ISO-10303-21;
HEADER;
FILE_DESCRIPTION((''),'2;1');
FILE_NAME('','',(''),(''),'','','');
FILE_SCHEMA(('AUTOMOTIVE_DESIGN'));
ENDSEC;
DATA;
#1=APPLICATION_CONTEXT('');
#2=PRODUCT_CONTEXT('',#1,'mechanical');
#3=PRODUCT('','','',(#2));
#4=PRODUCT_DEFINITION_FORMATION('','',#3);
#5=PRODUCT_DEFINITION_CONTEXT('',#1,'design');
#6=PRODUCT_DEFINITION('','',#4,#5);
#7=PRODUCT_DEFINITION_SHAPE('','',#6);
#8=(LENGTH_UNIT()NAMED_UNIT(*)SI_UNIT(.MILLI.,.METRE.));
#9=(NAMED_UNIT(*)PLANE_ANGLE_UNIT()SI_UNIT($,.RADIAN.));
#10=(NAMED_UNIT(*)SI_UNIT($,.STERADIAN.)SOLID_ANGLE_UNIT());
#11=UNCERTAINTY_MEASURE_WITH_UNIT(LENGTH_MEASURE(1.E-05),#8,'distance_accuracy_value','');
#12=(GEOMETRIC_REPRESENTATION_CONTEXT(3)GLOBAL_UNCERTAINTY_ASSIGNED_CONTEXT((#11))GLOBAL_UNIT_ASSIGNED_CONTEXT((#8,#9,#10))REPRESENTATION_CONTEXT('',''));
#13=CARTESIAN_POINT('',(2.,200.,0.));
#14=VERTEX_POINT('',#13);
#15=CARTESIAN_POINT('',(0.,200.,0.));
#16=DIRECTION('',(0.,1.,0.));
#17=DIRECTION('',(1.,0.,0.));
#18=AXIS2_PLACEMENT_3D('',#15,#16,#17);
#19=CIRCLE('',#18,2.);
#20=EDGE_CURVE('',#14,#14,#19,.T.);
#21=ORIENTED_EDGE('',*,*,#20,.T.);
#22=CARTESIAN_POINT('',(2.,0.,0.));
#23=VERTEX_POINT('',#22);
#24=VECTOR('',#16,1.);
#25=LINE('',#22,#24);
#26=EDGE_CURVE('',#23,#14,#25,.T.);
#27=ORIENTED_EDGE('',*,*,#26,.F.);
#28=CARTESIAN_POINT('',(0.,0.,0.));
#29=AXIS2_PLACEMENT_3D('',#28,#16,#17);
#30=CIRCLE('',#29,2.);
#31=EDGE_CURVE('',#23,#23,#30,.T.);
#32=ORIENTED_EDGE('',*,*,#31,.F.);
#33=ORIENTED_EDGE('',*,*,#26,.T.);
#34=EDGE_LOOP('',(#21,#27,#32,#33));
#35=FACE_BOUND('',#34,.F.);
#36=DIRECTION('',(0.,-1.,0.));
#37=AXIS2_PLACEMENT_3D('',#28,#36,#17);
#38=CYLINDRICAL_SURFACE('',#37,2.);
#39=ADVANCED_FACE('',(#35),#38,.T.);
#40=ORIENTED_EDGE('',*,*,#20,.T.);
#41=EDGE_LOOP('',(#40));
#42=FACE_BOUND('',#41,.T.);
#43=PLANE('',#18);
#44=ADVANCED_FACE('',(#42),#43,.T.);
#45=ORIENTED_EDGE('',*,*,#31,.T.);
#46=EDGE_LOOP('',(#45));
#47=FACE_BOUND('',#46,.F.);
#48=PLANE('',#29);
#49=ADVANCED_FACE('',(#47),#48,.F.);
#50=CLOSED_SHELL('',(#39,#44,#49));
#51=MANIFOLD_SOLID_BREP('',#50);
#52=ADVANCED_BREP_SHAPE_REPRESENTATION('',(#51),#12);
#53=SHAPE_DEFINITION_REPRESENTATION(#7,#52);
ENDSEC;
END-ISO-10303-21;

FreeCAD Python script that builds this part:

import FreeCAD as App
import Part
import Sketcher
from FreeCAD import Vector
Q = App.Units.Quantity

doc = App.newDocument("Part")
params = doc.addObject("Spreadsheet::Sheet", "Params")
for row, (alias, value) in enumerate([
    ("sketch1_diameter", "4 mm"),
    ("pad1_length", "200 mm"),
], start=1):
    params.set(f"A{row}", alias)
    params.set(f"B{row}", "=" + value)
    params.setAlias(f"B{row}", alias)

body = doc.addObject("PartDesign::Body", "Body")

# Sketch on XZ plane
sketch1 = body.newObject("Sketcher::SketchObject", "Sketch")
sketch1.AttachmentSupport = (doc.getObject("XZ_Plane"), [""])
sketch1.MapMode = "FlatFace"
sketch1.addGeometry(Part.Circle(Vector(0, 0, 0), Vector(0, 0, 1), 2), False)
sketch1.addConstraint([
    Sketcher.Constraint("Coincident", 0, 3, -1, 1),
    Sketcher.Constraint("Diameter", 0, Q("4 mm")),
])
sketch1.setExpression("Constraints[1]", "Params.sketch1_diameter")
pad1 = body.newObject("PartDesign::Pad", "Pad")
pad1.Profile = sketch1
pad1.setExpression("Length", "Params.pad1_length")
pad1.Reversed = True

doc.recompute()
